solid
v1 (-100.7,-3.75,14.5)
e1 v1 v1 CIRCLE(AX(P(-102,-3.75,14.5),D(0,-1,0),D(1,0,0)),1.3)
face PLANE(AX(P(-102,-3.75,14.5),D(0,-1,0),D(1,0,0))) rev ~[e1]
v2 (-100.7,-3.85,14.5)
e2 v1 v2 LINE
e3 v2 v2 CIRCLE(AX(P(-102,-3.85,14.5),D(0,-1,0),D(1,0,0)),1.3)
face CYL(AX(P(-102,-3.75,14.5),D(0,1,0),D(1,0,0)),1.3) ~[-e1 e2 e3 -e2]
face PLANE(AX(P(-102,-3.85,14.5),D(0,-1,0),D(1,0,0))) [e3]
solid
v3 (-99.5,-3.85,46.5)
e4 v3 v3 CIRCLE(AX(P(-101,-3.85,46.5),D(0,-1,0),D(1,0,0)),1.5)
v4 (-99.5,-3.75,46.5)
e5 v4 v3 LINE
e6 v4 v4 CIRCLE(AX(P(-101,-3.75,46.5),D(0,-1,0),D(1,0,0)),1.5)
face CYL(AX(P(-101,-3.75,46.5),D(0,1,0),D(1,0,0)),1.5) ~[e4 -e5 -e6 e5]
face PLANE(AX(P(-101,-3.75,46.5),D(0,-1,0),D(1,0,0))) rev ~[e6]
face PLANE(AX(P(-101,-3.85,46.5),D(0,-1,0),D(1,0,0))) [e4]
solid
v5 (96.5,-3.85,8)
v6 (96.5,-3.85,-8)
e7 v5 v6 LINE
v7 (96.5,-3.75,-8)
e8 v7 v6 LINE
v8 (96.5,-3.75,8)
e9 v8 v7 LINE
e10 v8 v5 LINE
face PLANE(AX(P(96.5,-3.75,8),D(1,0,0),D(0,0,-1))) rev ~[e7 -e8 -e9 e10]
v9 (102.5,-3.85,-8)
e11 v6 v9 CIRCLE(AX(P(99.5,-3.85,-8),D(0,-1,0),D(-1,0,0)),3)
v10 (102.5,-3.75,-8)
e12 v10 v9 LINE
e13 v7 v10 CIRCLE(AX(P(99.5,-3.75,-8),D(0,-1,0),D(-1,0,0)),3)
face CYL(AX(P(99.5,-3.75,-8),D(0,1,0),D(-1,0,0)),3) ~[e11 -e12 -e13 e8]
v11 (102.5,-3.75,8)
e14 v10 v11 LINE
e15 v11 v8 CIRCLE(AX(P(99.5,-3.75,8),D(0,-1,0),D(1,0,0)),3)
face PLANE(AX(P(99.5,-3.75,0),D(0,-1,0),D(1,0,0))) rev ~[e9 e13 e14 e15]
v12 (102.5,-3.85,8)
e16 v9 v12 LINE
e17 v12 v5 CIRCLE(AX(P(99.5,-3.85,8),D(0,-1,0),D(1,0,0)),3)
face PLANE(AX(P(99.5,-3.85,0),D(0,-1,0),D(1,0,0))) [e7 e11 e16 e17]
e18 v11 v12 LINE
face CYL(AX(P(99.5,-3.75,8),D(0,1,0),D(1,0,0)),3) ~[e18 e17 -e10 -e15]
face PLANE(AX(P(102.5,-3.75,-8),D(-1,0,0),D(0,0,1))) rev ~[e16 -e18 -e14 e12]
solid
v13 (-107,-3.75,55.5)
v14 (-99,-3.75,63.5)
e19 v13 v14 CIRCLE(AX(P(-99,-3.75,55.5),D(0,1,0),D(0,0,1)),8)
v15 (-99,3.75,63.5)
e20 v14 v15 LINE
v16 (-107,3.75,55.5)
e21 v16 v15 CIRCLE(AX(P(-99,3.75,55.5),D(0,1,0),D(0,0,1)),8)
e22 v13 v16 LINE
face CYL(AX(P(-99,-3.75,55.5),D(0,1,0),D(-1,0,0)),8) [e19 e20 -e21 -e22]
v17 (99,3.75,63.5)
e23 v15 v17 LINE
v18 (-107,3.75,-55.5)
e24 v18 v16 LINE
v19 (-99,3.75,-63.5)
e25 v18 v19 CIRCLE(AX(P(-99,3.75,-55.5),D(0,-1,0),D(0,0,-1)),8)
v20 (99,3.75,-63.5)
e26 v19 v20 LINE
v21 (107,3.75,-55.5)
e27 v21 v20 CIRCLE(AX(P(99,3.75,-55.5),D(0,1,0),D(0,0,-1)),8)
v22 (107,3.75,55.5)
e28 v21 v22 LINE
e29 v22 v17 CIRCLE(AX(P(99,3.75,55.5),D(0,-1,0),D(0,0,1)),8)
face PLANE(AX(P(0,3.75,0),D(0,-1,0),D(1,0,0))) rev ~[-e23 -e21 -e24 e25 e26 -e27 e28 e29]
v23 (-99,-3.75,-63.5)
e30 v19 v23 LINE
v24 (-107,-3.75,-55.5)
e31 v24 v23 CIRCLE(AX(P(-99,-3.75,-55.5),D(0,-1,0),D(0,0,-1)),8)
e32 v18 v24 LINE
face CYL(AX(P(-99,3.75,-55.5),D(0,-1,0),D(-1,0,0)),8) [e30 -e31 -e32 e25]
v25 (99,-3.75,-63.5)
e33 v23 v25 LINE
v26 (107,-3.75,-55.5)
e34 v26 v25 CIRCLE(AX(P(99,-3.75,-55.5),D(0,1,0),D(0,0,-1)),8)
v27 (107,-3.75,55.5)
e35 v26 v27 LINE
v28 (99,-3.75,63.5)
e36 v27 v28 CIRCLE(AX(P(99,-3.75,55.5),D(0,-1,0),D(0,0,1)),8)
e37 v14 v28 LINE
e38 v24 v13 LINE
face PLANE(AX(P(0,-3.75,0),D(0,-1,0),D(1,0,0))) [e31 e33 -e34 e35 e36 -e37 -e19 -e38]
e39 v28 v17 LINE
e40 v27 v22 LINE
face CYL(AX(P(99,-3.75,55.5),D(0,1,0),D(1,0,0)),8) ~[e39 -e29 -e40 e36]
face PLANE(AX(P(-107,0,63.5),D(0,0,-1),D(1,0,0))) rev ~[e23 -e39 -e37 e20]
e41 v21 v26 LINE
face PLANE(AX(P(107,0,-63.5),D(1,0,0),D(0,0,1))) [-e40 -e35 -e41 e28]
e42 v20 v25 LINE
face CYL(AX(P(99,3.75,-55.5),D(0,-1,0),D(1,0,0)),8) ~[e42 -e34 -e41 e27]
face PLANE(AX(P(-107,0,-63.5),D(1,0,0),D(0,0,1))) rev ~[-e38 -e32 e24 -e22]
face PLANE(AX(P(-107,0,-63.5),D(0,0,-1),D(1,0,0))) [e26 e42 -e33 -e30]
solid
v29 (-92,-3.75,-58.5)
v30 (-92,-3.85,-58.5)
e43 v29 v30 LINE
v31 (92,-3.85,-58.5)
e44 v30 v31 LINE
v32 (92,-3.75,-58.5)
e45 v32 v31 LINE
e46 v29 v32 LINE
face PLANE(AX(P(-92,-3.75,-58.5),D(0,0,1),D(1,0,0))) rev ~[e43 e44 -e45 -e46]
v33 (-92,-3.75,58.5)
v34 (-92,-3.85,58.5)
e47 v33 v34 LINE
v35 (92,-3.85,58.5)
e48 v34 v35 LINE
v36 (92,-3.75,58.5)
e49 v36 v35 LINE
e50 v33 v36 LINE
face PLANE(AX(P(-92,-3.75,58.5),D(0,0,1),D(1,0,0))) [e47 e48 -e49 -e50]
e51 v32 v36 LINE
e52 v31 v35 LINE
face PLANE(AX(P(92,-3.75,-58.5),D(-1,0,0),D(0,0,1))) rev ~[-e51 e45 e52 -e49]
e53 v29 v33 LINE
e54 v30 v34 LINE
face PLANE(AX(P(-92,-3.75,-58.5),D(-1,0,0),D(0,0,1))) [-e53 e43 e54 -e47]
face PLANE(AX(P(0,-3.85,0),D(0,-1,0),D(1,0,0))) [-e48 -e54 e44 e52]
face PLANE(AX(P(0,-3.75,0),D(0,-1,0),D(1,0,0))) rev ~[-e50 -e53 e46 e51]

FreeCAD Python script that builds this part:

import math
import FreeCAD as App
import Part
import Sketcher

V = App.Vector


def edges_at(feature, points):
    """Names of the edges that pass closest to the given points."""
    edges = feature.Shape.Edges
    near = lambda p: min(range(len(edges)), key=lambda i: edges[i].distToShape(Part.Vertex(*p))[0])
    return sorted({f"Edge{near(p) + 1}" for p in points})


def add_polygon(sketch, points):
    """Adds a closed chain of lines whose ends are joined by coincident constraints."""
    first, n = sketch.GeometryCount, len(points)
    for a, b in zip(points, points[1:] + points[:1]):
        sketch.addGeometry(Part.LineSegment(App.Vector(*a, 0), App.Vector(*b, 0)), False)
    for i in range(n):
        sketch.addConstraint(Sketcher.Constraint("Coincident", first + i, 2, first + (i + 1) % n, 1))

doc = App.newDocument("Part")
body = doc.addObject("PartDesign::Body", "Body")

sketch1 = body.newObject("Sketcher::SketchObject", "Sketch")
sketch1.AttachmentSupport = (doc.getObject("XZ_Plane"), [""])
sketch1.MapMode = "FlatFace"
add_polygon(sketch1, [(-107, 63.5), (-107, -63.5), (107, -63.5), (107, 63.5)])
sketch1.addConstraint([
    Sketcher.Constraint("Vertical", 0),
    Sketcher.Constraint("Horizontal", 1),
    Sketcher.Constraint("Vertical", 2),
    Sketcher.Constraint("Horizontal", 3),
    Sketcher.Constraint("Symmetric", 0, 2, 2, 2, -1, 1),
    Sketcher.Constraint("DistanceX", 1, 1, 1, 2, 214.0),
    Sketcher.Constraint("DistanceY", 0, 2, 0, 1, 127.0),
])
pad1 = body.newObject("PartDesign::Pad", "Pad")
pad1.Profile = sketch1
pad1.Length = 7.5
pad1.Midplane = True
doc.recompute()

fillet = body.newObject("PartDesign::Fillet", "Fillet")
fillet.Base = (pad1, edges_at(pad1, [
    (107, 0, 63.5),
    (107, 0, -63.5),
    (-107, 0, 63.5),
    (-107, 0, -63.5),
]))
fillet.Radius = 8
body2 = doc.addObject("PartDesign::Body", "Body001")
body2.AllowCompound = True

sketch2 = body2.newObject("Sketcher::SketchObject", "Sketch001")
sketch2.AttachmentSupport = (doc.getObject("XZ_Plane001"), [""])
sketch2.MapMode = "FlatFace"
sketch2.AttachmentOffset = App.Placement(V(0, 0, 3.75), App.Rotation())
sketch2.addGeometry(Part.ArcOfCircle(Part.Circle(V(99.5, -8, 0), V(0, 0, 1), 3), math.radians(180), math.radians(360)), False)
sketch2.addGeometry(Part.LineSegment(V(102.5, -8, 0), V(102.5, 8, 0)), False)
sketch2.addGeometry(Part.ArcOfCircle(Part.Circle(V(99.5, 8, 0), V(0, 0, 1), 3), math.radians(0), math.radians(180)), False)
sketch2.addGeometry(Part.LineSegment(V(96.5, 8, 0), V(96.5, -8, 0)), False)
add_polygon(sketch2, [(-92, 58.5), (-92, -58.5), (92, -58.5), (92, 58.5)])
sketch2.addGeometry(Part.Circle(V(-102, 14.5, 0), V(0, 0, 1), 1.3), False)
sketch2.addGeometry(Part.Circle(V(-101, 46.5, 0), V(0, 0, 1), 1.5), False)
sketch2.addConstraint([
    Sketcher.Constraint("Tangent", 0, 2, 1, 1),
    Sketcher.Constraint("Tangent", 1, 2, 2, 1),
    Sketcher.Constraint("Tangent", 2, 2, 3, 1),
    Sketcher.Constraint("Tangent", 3, 2, 0, 1),
    Sketcher.Constraint("Vertical", 1),
    Sketcher.Constraint("Vertical", 3),
    Sketcher.Constraint("Vertical", 4),
    Sketcher.Constraint("Horizontal", 5),
    Sketcher.Constraint("Vertical", 6),
    Sketcher.Constraint("Horizontal", 7),
    Sketcher.Constraint("Symmetric", 4, 2, 6, 2, -1, 1),
    Sketcher.Constraint("Diameter", 9, 3.0),
    Sketcher.Constraint("Radius", 0, 3.0),
    Sketcher.Constraint("Diameter", 8, 2.6),
    Sketcher.Constraint("DistanceX", 5, 1, 5, 2, 184.0),
    Sketcher.Constraint("DistanceY", 1, 1, 1, 2, 16.0),
    Sketcher.Constraint("DistanceY", 4, 2, 4, 1, 117.0),
    Sketcher.Constraint("DistanceY", 0, 3, -1, 1, 8.0),
    Sketcher.Constraint("DistanceX", 8, 3, -1, 1, 102.0),
    Sketcher.Constraint("DistanceX", 9, 3, -1, 1, 101.0),
    Sketcher.Constraint("DistanceY", 8, 3, 9, 3, 32.0),
    Sketcher.Constraint("DistanceY", 4, 2, 8, 3, 73.0),
    Sketcher.Constraint("DistanceX", -1, 1, 0, 3, 99.5),
])
pad2 = body2.newObject("PartDesign::Pad", "Pad001")
pad2.Profile = sketch2
pad2.Length = 0.1

doc.recompute()
